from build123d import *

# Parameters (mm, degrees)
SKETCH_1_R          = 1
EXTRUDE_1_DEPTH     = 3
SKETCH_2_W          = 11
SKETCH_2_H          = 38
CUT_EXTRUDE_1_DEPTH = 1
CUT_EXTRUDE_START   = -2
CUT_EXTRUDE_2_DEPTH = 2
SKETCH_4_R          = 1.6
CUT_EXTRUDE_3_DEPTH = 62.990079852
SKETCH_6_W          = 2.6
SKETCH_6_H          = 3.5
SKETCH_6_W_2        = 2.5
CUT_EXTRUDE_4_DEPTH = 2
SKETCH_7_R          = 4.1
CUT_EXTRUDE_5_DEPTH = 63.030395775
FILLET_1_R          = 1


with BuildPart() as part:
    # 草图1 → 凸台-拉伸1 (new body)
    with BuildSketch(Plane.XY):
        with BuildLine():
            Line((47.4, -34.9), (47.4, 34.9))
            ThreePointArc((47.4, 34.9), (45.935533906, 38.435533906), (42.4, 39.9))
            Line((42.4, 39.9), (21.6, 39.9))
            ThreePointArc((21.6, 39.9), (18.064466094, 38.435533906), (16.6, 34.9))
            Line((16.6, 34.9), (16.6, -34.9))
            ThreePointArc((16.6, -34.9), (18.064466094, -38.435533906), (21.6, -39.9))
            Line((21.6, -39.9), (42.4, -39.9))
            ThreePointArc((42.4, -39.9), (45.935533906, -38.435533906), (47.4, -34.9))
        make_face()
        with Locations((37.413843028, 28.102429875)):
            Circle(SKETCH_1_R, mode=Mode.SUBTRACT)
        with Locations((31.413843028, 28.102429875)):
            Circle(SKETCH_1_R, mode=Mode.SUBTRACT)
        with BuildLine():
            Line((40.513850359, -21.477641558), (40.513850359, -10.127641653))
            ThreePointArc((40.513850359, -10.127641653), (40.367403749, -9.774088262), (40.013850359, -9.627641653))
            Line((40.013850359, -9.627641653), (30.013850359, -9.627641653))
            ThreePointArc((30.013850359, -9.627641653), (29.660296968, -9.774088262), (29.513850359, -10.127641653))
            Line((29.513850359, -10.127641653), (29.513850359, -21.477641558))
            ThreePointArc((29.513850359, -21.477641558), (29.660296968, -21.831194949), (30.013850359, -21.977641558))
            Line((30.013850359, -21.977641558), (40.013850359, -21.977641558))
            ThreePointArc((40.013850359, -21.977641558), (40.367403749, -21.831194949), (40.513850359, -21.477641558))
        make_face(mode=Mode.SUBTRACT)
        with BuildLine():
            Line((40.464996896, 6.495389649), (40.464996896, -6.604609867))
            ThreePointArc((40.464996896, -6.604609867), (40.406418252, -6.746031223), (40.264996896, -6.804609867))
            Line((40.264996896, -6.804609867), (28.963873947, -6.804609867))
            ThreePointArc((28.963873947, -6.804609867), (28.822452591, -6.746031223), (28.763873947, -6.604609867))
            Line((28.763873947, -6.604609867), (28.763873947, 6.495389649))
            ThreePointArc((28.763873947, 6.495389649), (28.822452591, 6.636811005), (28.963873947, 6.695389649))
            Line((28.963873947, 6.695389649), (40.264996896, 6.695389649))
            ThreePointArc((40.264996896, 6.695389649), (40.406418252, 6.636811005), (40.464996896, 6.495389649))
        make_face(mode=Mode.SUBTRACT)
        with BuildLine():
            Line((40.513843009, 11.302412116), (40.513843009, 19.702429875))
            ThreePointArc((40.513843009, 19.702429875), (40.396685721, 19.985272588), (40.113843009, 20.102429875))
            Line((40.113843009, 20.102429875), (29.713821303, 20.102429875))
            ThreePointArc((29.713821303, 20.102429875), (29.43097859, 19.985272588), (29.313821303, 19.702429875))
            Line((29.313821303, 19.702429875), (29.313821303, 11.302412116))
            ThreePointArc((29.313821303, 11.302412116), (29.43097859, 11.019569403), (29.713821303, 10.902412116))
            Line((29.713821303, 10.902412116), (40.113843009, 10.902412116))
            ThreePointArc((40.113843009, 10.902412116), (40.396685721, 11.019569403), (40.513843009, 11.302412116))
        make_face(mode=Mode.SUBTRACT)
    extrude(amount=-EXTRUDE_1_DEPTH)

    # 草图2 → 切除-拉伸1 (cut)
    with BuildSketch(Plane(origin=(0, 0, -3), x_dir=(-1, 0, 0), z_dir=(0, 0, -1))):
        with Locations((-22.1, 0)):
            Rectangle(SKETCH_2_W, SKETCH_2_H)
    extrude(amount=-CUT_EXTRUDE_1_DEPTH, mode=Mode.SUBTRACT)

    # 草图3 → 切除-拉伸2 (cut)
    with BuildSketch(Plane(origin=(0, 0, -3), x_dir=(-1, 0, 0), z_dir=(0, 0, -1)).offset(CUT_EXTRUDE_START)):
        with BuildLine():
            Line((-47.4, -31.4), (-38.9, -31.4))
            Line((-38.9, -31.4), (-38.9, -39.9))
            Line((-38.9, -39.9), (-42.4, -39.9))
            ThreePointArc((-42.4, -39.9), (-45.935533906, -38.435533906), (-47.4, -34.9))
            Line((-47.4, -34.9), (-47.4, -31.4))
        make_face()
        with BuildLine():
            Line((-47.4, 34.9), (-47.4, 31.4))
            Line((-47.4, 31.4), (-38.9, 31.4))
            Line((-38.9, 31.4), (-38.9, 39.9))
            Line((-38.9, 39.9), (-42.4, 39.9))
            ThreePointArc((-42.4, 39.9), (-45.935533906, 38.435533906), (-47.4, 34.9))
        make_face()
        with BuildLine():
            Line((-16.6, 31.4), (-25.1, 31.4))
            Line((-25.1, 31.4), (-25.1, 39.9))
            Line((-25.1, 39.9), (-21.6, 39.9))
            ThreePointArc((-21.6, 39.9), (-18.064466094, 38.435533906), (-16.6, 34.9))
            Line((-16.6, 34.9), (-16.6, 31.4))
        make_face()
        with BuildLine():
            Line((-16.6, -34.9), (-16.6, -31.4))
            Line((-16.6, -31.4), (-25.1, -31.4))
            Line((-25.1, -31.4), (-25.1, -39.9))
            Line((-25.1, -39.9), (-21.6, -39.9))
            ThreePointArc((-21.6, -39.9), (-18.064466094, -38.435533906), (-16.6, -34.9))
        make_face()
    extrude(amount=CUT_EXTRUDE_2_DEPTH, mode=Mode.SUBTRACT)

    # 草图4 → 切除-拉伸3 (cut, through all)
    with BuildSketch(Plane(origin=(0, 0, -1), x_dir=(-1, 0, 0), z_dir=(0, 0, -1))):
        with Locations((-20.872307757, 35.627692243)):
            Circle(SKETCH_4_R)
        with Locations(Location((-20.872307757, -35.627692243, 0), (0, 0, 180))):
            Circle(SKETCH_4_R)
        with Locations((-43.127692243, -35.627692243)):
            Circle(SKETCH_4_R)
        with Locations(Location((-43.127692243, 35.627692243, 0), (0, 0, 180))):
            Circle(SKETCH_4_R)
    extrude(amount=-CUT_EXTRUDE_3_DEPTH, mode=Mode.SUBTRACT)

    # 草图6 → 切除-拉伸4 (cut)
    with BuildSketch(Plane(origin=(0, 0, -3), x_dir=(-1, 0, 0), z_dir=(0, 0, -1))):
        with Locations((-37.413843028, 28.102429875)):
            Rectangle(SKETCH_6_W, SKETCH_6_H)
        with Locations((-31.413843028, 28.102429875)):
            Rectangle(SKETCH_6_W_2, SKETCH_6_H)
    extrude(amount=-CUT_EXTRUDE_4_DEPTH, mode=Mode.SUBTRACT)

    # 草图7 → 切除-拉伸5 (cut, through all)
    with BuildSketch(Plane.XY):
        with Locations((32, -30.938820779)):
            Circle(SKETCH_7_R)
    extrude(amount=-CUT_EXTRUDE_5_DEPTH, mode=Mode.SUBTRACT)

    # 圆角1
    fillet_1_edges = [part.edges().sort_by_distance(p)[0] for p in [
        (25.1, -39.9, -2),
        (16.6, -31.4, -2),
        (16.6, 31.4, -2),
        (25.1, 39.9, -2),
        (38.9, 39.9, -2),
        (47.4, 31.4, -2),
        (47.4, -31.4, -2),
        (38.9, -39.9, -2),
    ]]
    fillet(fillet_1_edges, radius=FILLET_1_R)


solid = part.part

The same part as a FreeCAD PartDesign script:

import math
import FreeCAD as App
import Part
import Sketcher


def edges_at(feature, points):
    """Names of the edges that pass closest to the given points."""
    edges = feature.Shape.Edges
    near = lambda p: min(range(len(edges)), key=lambda i: edges[i].distToShape(Part.Vertex(*p))[0])
    return sorted({f"Edge{near(p) + 1}" for p in points})

doc = App.newDocument("Part")
body = doc.addObject("PartDesign::Body", "Body")

sketch1 = body.newObject("Sketcher::SketchObject", "Sketch")
sketch1.AttachmentSupport = (doc.getObject("XY_Plane"), [""])
sketch1.MapMode = "FlatFace"
sketch1.addGeometry(Part.LineSegment(App.Vector(47.4, -34.9, 0), App.Vector(47.4, 34.9, 0)), False)
sketch1.addGeometry(Part.ArcOfCircle(Part.Circle(App.Vector(42.4, 34.9, 0), App.Vector(0, 0, 1), 5), math.radians(0), math.radians(90)), False)
sketch1.addGeometry(Part.LineSegment(App.Vector(42.4, 39.9, 0), App.Vector(21.6, 39.9, 0)), False)
sketch1.addGeometry(Part.ArcOfCircle(Part.Circle(App.Vector(21.6, 34.9, 0), App.Vector(0, 0, 1), 5), math.radians(90), math.radians(180)), False)
sketch1.addGeometry(Part.LineSegment(App.Vector(16.6, 34.9, 0), App.Vector(16.6, -34.9, 0)), False)
sketch1.addGeometry(Part.ArcOfCircle(Part.Circle(App.Vector(21.6, -34.9, 0), App.Vector(0, 0, 1), 5), math.radians(180), math.radians(270)), False)
sketch1.addGeometry(Part.LineSegment(App.Vector(21.6, -39.9, 0), App.Vector(42.4, -39.9, 0)), False)
sketch1.addGeometry(Part.ArcOfCircle(Part.Circle(App.Vector(42.4, -34.9, 0), App.Vector(0, 0, 1), 5), math.radians(-90), math.radians(0)), False)
sketch1.addGeometry(Part.ArcOfCircle(Part.Circle(App.Vector(40.26, 6.5, 0), App.Vector(0, 0, 1), 0.2), math.radians(0), math.radians(90)), False)
sketch1.addGeometry(Part.LineSegment(App.Vector(40.46, 6.5, 0), App.Vector(40.46, -6.6, 0)), False)
sketch1.addGeometry(Part.ArcOfCircle(Part.Circle(App.Vector(40.26, -6.6, 0), App.Vector(0, 0, 1), 0.2), math.radians(-90), math.radians(0)), False)
sketch1.addGeometry(Part.LineSegment(App.Vector(40.26, -6.8, 0), App.Vector(28.96, -6.8, 0)), False)
sketch1.addGeometry(Part.ArcOfCircle(Part.Circle(App.Vector(28.96, -6.6, 0), App.Vector(0, 0, 1), 0.2), math.radians(-180), math.radians(-90)), False)
sketch1.addGeometry(Part.LineSegment(App.Vector(28.76, -6.6, 0), App.Vector(28.76, 6.5, 0)), False)
sketch1.addGeometry(Part.ArcOfCircle(Part.Circle(App.Vector(28.96, 6.5, 0), App.Vector(0, 0, 1), 0.2), math.radians(90), math.radians(180)), False)
sketch1.addGeometry(Part.LineSegment(App.Vector(28.96, 6.7, 0), App.Vector(40.26, 6.7, 0)), False)
sketch1.addGeometry(Part.LineSegment(App.Vector(40.51, -10.13, 0), App.Vector(40.51, -21.48, 0)), False)
sketch1.addGeometry(Part.ArcOfCircle(Part.Circle(App.Vector(40.01, -21.48, 0), App.Vector(0, 0, 1), 0.5), math.radians(-90), math.radians(0)), False)
sketch1.addGeometry(Part.LineSegment(App.Vector(40.01, -21.98, 0), App.Vector(30.01, -21.98, 0)), False)
sketch1.addGeometry(Part.ArcOfCircle(Part.Circle(App.Vector(30.01, -21.48, 0), App.Vector(0, 0, 1), 0.5), math.radians(180), math.radians(270)), False)
sketch1.addGeometry(Part.LineSegment(App.Vector(29.51, -21.48, 0), App.Vector(29.51, -10.13, 0)), False)
sketch1.addGeometry(Part.ArcOfCircle(Part.Circle(App.Vector(30.01, -10.13, 0), App.Vector(0, 0, 1), 0.5), math.radians(90), math.radians(180)), False)
sketch1.addGeometry(Part.LineSegment(App.Vector(30.01, -9.63, 0), App.Vector(40.01, -9.63, 0)), False)
sketch1.addGeometry(Part.ArcOfCircle(Part.Circle(App.Vector(40.01, -10.13, 0), App.Vector(0, 0, 1), 0.5), math.radians(0), math.radians(90)), False)
sketch1.addGeometry(Part.Circle(App.Vector(31.41, 28.1, 0), App.Vector(0, 0, 1), 1), False)
sketch1.addGeometry(Part.LineSegment(App.Vector(40.51, 19.7, 0), App.Vector(40.51, 11.3, 0)), False)
sketch1.addGeometry(Part.ArcOfCircle(Part.Circle(App.Vector(40.11, 11.3, 0), App.Vector(0, 0, 1), 0.4), math.radians(-90), math.radians(0)), False)
sketch1.addGeometry(Part.LineSegment(App.Vector(40.11, 10.9, 0), App.Vector(29.71, 10.9, 0)), False)
sketch1.addGeometry(Part.ArcOfCircle(Part.Circle(App.Vector(29.71, 11.3, 0), App.Vector(0, 0, 1), 0.4), math.radians(180), math.radians(270)), False)
sketch1.addGeometry(Part.LineSegment(App.Vector(29.31, 11.3, 0), App.Vector(29.31, 19.7, 0)), False)
sketch1.addGeometry(Part.ArcOfCircle(Part.Circle(App.Vector(29.71, 19.7, 0), App.Vector(0, 0, 1), 0.4), math.radians(90), math.radians(180)), False)
sketch1.addGeometry(Part.LineSegment(App.Vector(29.71, 20.1, 0), App.Vector(40.11, 20.1, 0)), False)
sketch1.addGeometry(Part.ArcOfCircle(Part.Circle(App.Vector(40.11, 19.7, 0), App.Vector(0, 0, 1), 0.4), math.radians(0), math.radians(90)), False)
sketch1.addGeometry(Part.Circle(App.Vector(37.41, 28.1, 0), App.Vector(0, 0, 1), 1), False)
sketch1.addConstraint(Sketcher.Constraint("Tangent", 0, 2, 1, 1))
sketch1.addConstraint(Sketcher.Constraint("Tangent", 1, 2, 2, 1))
sketch1.addConstraint(Sketcher.Constraint("Tangent", 2, 2, 3, 1))
sketch1.addConstraint(Sketcher.Constraint("Tangent", 3, 2, 4, 1))
sketch1.addConstraint(Sketcher.Constraint("Tangent", 4, 2, 5, 1))
sketch1.addConstraint(Sketcher.Constraint("Tangent", 5, 2, 6, 1))
sketch1.addConstraint(Sketcher.Constraint("Tangent", 6, 2, 7, 1))
sketch1.addConstraint(Sketcher.Constraint("Tangent", 7, 2, 0, 1))
sketch1.addConstraint(Sketcher.Constraint("Tangent", 8, 1, 9, 1))
sketch1.addConstraint(Sketcher.Constraint("Tangent", 9, 2, 10, 2))
sketch1.addConstraint(Sketcher.Constraint("Tangent", 10, 1, 11, 1))
sketch1.addConstraint(Sketcher.Constraint("Tangent", 11, 2, 12, 2))
sketch1.addConstraint(Sketcher.Constraint("Tangent", 12, 1, 13, 1))
sketch1.addConstraint(Sketcher.Constraint("Tangent", 13, 2, 14, 2))
sketch1.addConstraint(Sketcher.Constraint("Tangent", 14, 1, 15, 1))
sketch1.addConstraint(Sketcher.Constraint("Tangent", 15, 2, 8, 2))
sketch1.addConstraint(Sketcher.Constraint("Tangent", 16, 2, 17, 2))
sketch1.addConstraint(Sketcher.Constraint("Tangent", 17, 1, 18, 1))
sketch1.addConstraint(Sketcher.Constraint("Tangent", 18, 2, 19, 2))
sketch1.addConstraint(Sketcher.Constraint("Tangent", 19, 1, 20, 1))
sketch1.addConstraint(Sketcher.Constraint("Tangent", 20, 2, 21, 2))
sketch1.addConstraint(Sketcher.Constraint("Tangent", 21, 1, 22, 1))
sketch1.addConstraint(Sketcher.Constraint("Tangent", 22, 2, 23, 2))
sketch1.addConstraint(Sketcher.Constraint("Tangent", 23, 1, 16, 1))
sketch1.addConstraint(Sketcher.Constraint("Tangent", 25, 2, 26, 2))
sketch1.addConstraint(Sketcher.Constraint("Tangent", 26, 1, 27, 1))
sketch1.addConstraint(Sketcher.Constraint("Tangent", 27, 2, 28, 2))
sketch1.addConstraint(Sketcher.Constraint("Tangent", 28, 1, 29, 1))
sketch1.addConstraint(Sketcher.Constraint("Tangent", 29, 2, 30, 2))
sketch1.addConstraint(Sketcher.Constraint("Tangent", 30, 1, 31, 1))
sketch1.addConstraint(Sketcher.Constraint("Tangent", 31, 2, 32, 2))
sketch1.addConstraint(Sketcher.Constraint("Tangent", 32, 1, 25, 1))
sketch1.addConstraint(Sketcher.Constraint("Vertical", 0))
sketch1.addConstraint(Sketcher.Constraint("Horizontal", 2))
sketch1.addConstraint(Sketcher.Constraint("Vertical", 4))
sketch1.addConstraint(Sketcher.Constraint("Horizontal", 6))
sketch1.addConstraint(Sketcher.Constraint("Vertical", 9))
sketch1.addConstraint(Sketcher.Constraint("Horizontal", 11))
sketch1.addConstraint(Sketcher.Constraint("Vertical", 13))
sketch1.addConstraint(Sketcher.Constraint("Horizontal", 15))
sketch1.addConstraint(Sketcher.Constraint("Vertical", 16))
sketch1.addConstraint(Sketcher.Constraint("Horizontal", 18))
sketch1.addConstraint(Sketcher.Constraint("Vertical", 20))
sketch1.addConstraint(Sketcher.Constraint("Horizontal", 22))
sketch1.addConstraint(Sketcher.Constraint("Vertical", 25))
sketch1.addConstraint(Sketcher.Constraint("Horizontal", 27))
sketch1.addConstraint(Sketcher.Constraint("Vertical", 29))
sketch1.addConstraint(Sketcher.Constraint("Horizontal", 31))
sketch1.addConstraint(Sketcher.Constraint("Equal", 1, 3))
sketch1.addConstraint(Sketcher.Constraint("Equal", 3, 5))
sketch1.addConstraint(Sketcher.Constraint("Equal", 5, 7))
sketch1.addConstraint(Sketcher.Constraint("Equal", 8, 10))
sketch1.addConstraint(Sketcher.Constraint("Equal", 10, 12))
sketch1.addConstraint(Sketcher.Constraint("Equal", 12, 14))
sketch1.addConstraint(Sketcher.Constraint("Equal", 17, 19))
sketch1.addConstraint(Sketcher.Constraint("Equal", 19, 21))
sketch1.addConstraint(Sketcher.Constraint("Equal", 21, 23))
sketch1.addConstraint(Sketcher.Constraint("Equal", 26, 28))
sketch1.addConstraint(Sketcher.Constraint("Equal", 28, 30))
sketch1.addConstraint(Sketcher.Constraint("Equal", 30, 32))
sketch1.addConstraint(Sketcher.Constraint("Equal", 24, 33))
sketch1.addConstraint(Sketcher.Constraint("Horizontal", 24, 3, 33, 3))
sketch1.addConstraint(Sketcher.Constraint("Diameter", 24, 2.0))
sketch1.addConstraint(Sketcher.Constraint("Radius", 1, 5.0))
sketch1.addConstraint(Sketcher.Constraint("Radius", 8, 0.2))
sketch1.addConstraint(Sketcher.Constraint("Radius", 17, 0.5))
sketch1.addConstraint(Sketcher.Constraint("Radius", 26, 0.4))
sketch1.addConstraint(Sketcher.Constraint("DistanceX", 18, 2, 18, 1, 10.0))
sketch1.addConstraint(Sketcher.Constraint("DistanceX", 2, 2, 2, 1, 20.8))
sketch1.addConstraint(Sketcher.Constraint("DistanceY", 0, 1, 0, 2, 69.8))
sketch1.addConstraint(Sketcher.Constraint("DistanceY", 9, 2, 9, 1, 13.1))
sketch1.addConstraint(Sketcher.Constraint("DistanceX", 24, 3, 33, 3, 6.0))
sketch1.addConstraint(Sketcher.Constraint("DistanceY", 30, 1, 24, 3, 8.0))
sketch1.addConstraint(Sketcher.Constraint("DistanceY", 16, 2, 16, 1, 11.35))
sketch1.addConstraint(Sketcher.Constraint("DistanceX", -1, 1, 1, 3, 42.4))
sketch1.addConstraint(Sketcher.Constraint("DistanceY", -1, 1, 1, 3, 34.9))
sketch1.addConstraint(Sketcher.Constraint("DistanceX", 24, 3, 26, 3, 8.7))
sketch1.addConstraint(Sketcher.Constraint("DistanceX", 27, 2, 27, 1, 10.400022))
sketch1.addConstraint(Sketcher.Constraint("DistanceX", 11, 2, 11, 1, 11.301123))
sketch1.addConstraint(Sketcher.Constraint("DistanceY", 25, 2, 25, 1, 8.400018))
sketch1.addConstraint(Sketcher.Constraint("DistanceY", -1, 1, 8, 3, 6.49539))
sketch1.addConstraint(Sketcher.Constraint("DistanceX", -1, 1, 17, 3, 40.01385))
sketch1.addConstraint(Sketcher.Constraint("DistanceY", 17, 3, -1, 1, 21.477642))
sketch1.addConstraint(Sketcher.Constraint("DistanceY", -1, 1, 24, 3, 28.10243))
sketch1.addConstraint(Sketcher.Constraint("DistanceX", -1, 1, 28, 3, 29.713821))
sketch1.addConstraint(Sketcher.Constraint("DistanceX", 14, 3, 24, 3, 2.449969))
pad1 = body.newObject("PartDesign::Pad", "Pad")
pad1.Profile = sketch1
pad1.Length = 3
pad1.Reversed = True

sketch2 = body.newObject("Sketcher::SketchObject", "Sketch001")
sketch2.AttachmentSupport = (doc.getObject("XY_Plane"), [""])
sketch2.MapMode = "FlatFace"
sketch2.AttachmentOffset = App.Placement(App.Vector(0, 0, -3), App.Rotation())
sketch2.addGeometry(Part.LineSegment(App.Vector(28, 19, 0), App.Vector(28, -19, 0)), False)
sketch2.addGeometry(Part.LineSegment(App.Vector(28, -19, 0), App.Vector(17, -19, 0)), False)
sketch2.addGeometry(Part.LineSegment(App.Vector(17, -19, 0), App.Vector(17, 19, 0)), False)
sketch2.addGeometry(Part.LineSegment(App.Vector(17, 19, 0), App.Vector(28, 19, 0)), False)
sketch2.addConstraint(Sketcher.Constraint("Coincident", 0, 2, 1, 1))
sketch2.addConstraint(Sketcher.Constraint("Coincident", 1, 2, 2, 1))
sketch2.addConstraint(Sketcher.Constraint("Coincident", 2, 2, 3, 1))
sketch2.addConstraint(Sketcher.Constraint("Coincident", 3, 2, 0, 1))
sketch2.addConstraint(Sketcher.Constraint("Vertical", 0))
sketch2.addConstraint(Sketcher.Constraint("Horizontal", 1))
sketch2.addConstraint(Sketcher.Constraint("Vertical", 2))
sketch2.addConstraint(Sketcher.Constraint("Horizontal", 3))
sketch2.addConstraint(Sketcher.Constraint("DistanceX", 1, 2, 1, 1, 11.0))
sketch2.addConstraint(Sketcher.Constraint("DistanceY", 0, 2, 0, 1, 38.0))
sketch2.addConstraint(Sketcher.Constraint("DistanceY", 0, 2, -1, 1, 19.0))
sketch2.addConstraint(Sketcher.Constraint("DistanceX", -1, 1, 0, 2, 27.6))
pocket1 = body.newObject("PartDesign::Pocket", "Pocket")
pocket1.Profile = sketch2
pocket1.Length = 1
pocket1.Reversed = True

sketch3 = body.newObject("Sketcher::SketchObject", "Sketch002")
sketch3.AttachmentSupport = (doc.getObject("XY_Plane"), [""])
sketch3.MapMode = "FlatFace"
sketch3.AttachmentOffset = App.Placement(App.Vector(0, 0, -1), App.Rotation())
sketch3.addGeometry(Part.LineSegment(App.Vector(38.9, -31.4, 0), App.Vector(47.4, -31.4, 0)), False)
sketch3.addGeometry(Part.LineSegment(App.Vector(47.4, -31.4, 0), App.Vector(47.4, -34.9, 0)), False)
sketch3.addGeometry(Part.ArcOfCircle(Part.Circle(App.Vector(42.4, -34.9, 0), App.Vector(0, 0, 1), 5), math.radians(-90), math.radians(0)), False)
sketch3.addGeometry(Part.LineSegment(App.Vector(42.4, -39.9, 0), App.Vector(38.9, -39.9, 0)), False)
sketch3.addGeometry(Part.LineSegment(App.Vector(38.9, -39.9, 0), App.Vector(38.9, -31.4, 0)), False)
sketch3.addGeometry(Part.LineSegment(App.Vector(47.4, 34.9, 0), App.Vector(47.4, 31.4, 0)), False)
sketch3.addGeometry(Part.LineSegment(App.Vector(47.4, 31.4, 0), App.Vector(38.9, 31.4, 0)), False)
sketch3.addGeometry(Part.LineSegment(App.Vector(38.9, 31.4, 0), App.Vector(38.9, 39.9, 0)), False)
sketch3.addGeometry(Part.LineSegment(App.Vector(38.9, 39.9, 0), App.Vector(42.4, 39.9, 0)), False)
sketch3.addGeometry(Part.ArcOfCircle(Part.Circle(App.Vector(42.4, 34.9, 0), App.Vector(0, 0, 1), 5), math.radians(0), math.radians(90)), False)
sketch3.addGeometry(Part.LineSegment(App.Vector(25.1, 31.4, 0), App.Vector(16.6, 31.4, 0)), False)
sketch3.addGeometry(Part.LineSegment(App.Vector(16.6, 31.4, 0), App.Vector(16.6, 34.9, 0)), False)
sketch3.addGeometry(Part.ArcOfCircle(Part.Circle(App.Vector(21.6, 34.9, 0), App.Vector(0, 0, 1), 5), math.radians(90), math.radians(180)), False)
sketch3.addGeometry(Part.LineSegment(App.Vector(21.6, 39.9, 0), App.Vector(25.1, 39.9, 0)), False)
sketch3.addGeometry(Part.LineSegment(App.Vector(25.1, 39.9, 0), App.Vector(25.1, 31.4, 0)), False)
sketch3.addGeometry(Part.LineSegment(App.Vector(16.6, -34.9, 0), App.Vector(16.6, -31.4, 0)), False)
sketch3.addGeometry(Part.LineSegment(App.Vector(16.6, -31.4, 0), App.Vector(25.1, -31.4, 0)), False)
sketch3.addGeometry(Part.LineSegment(App.Vector(25.1, -31.4, 0), App.Vector(25.1, -39.9, 0)), False)
sketch3.addGeometry(Part.LineSegment(App.Vector(25.1, -39.9, 0), App.Vector(21.6, -39.9, 0)), False)
sketch3.addGeometry(Part.ArcOfCircle(Part.Circle(App.Vector(21.6, -34.9, 0), App.Vector(0, 0, 1), 5), math.radians(180), math.radians(270)), False)
sketch3.addConstraint(Sketcher.Constraint("Coincident", 0, 2, 1, 1))
sketch3.addConstraint(Sketcher.Constraint("Tangent", 1, 2, 2, 2))
sketch3.addConstraint(Sketcher.Constraint("Tangent", 2, 1, 3, 1))
sketch3.addConstraint(Sketcher.Constraint("Coincident", 3, 2, 4, 1))
sketch3.addConstraint(Sketcher.Constraint("Coincident", 4, 2, 0, 1))
sketch3.addConstraint(Sketcher.Constraint("Coincident", 5, 2, 6, 1))
sketch3.addConstraint(Sketcher.Constraint("Coincident", 6, 2, 7, 1))
sketch3.addConstraint(Sketcher.Constraint("Coincident", 7, 2, 8, 1))
sketch3.addConstraint(Sketcher.Constraint("Tangent", 8, 2, 9, 2))
sketch3.addConstraint(Sketcher.Constraint("Tangent", 9, 1, 5, 1))
sketch3.addConstraint(Sketcher.Constraint("Coincident", 10, 2, 11, 1))
sketch3.addConstraint(Sketcher.Constraint("Tangent", 11, 2, 12, 2))
sketch3.addConstraint(Sketcher.Constraint("Tangent", 12, 1, 13, 1))
sketch3.addConstraint(Sketcher.Constraint("Coincident", 13, 2, 14, 1))
sketch3.addConstraint(Sketcher.Constraint("Coincident", 14, 2, 10, 1))
sketch3.addConstraint(Sketcher.Constraint("Coincident", 15, 2, 16, 1))
sketch3.addConstraint(Sketcher.Constraint("Coincident", 16, 2, 17, 1))
sketch3.addConstraint(Sketcher.Constraint("Coincident", 17, 2, 18, 1))
sketch3.addConstraint(Sketcher.Constraint("Tangent", 18, 2, 19, 2))
sketch3.addConstraint(Sketcher.Constraint("Tangent", 19, 1, 15, 1))
sketch3.addConstraint(Sketcher.Constraint("Horizontal", 0))
sketch3.addConstraint(Sketcher.Constraint("Vertical", 1))
sketch3.addConstraint(Sketcher.Constraint("Horizontal", 3))
sketch3.addConstraint(Sketcher.Constraint("Vertical", 4))
sketch3.addConstraint(Sketcher.Constraint("Vertical", 5))
sketch3.addConstraint(Sketcher.Constraint("Horizontal", 6))
sketch3.addConstraint(Sketcher.Constraint("Vertical", 7))
sketch3.addConstraint(Sketcher.Constraint("Horizontal", 8))
sketch3.addConstraint(Sketcher.Constraint("Horizontal", 10))
sketch3.addConstraint(Sketcher.Constraint("Vertical", 11))
sketch3.addConstraint(Sketcher.Constraint("Horizontal", 13))
sketch3.addConstraint(Sketcher.Constraint("Vertical", 14))
sketch3.addConstraint(Sketcher.Constraint("Vertical", 15))
sketch3.addConstraint(Sketcher.Constraint("Horizontal", 16))
sketch3.addConstraint(Sketcher.Constraint("Vertical", 17))
sketch3.addConstraint(Sketcher.Constraint("Horizontal", 18))
sketch3.addConstraint(Sketcher.Constraint("Equal", 2, 9))
sketch3.addConstraint(Sketcher.Constraint("Equal", 9, 12))
sketch3.addConstraint(Sketcher.Constraint("Equal", 12, 19))
sketch3.addConstraint(Sketcher.Constraint("Symmetric", 2, 3, 9, 3, -1))
sketch3.addConstraint(Sketcher.Constraint("Symmetric", 12, 3, 19, 3, -1))
sketch3.addConstraint(Sketcher.Constraint("Symmetric", 4, 2, 6, 2, -1))
sketch3.addConstraint(Sketcher.Constraint("Symmetric", 14, 2, 16, 2, -1))
sketch3.addConstraint(Sketcher.Constraint("Horizontal", 9, 3, 12, 3))
sketch3.addConstraint(Sketcher.Constraint("Horizontal", 6, 2, 10, 2))
sketch3.addConstraint(Sketcher.Constraint("Equal", 6, 10))
sketch3.addConstraint(Sketcher.Constraint("Equal", 18, 1))
sketch3.addConstraint(Sketcher.Constraint("Radius", 2, 5.0))
sketch3.addConstraint(Sketcher.Constraint("DistanceX", 0, 1, 0, 2, 8.5))
sketch3.addConstraint(Sketcher.Constraint("DistanceX", -1, 1, 2, 3, 42.4))
sketch3.addConstraint(Sketcher.Constraint("DistanceY", 2, 3, -1, 1, 34.9))
sketch3.addConstraint(Sketcher.Constraint("DistanceX", -1, 1, 12, 3, 21.6))
pocket2 = body.newObject("PartDesign::Pocket", "Pocket001")
pocket2.Profile = sketch3
pocket2.Length = 2

sketch4 = body.newObject("Sketcher::SketchObject", "Sketch003")
sketch4.AttachmentSupport = (doc.getObject("XY_Plane"), [""])
sketch4.MapMode = "FlatFace"
sketch4.AttachmentOffset = App.Placement(App.Vector(0, 0, -1), App.Rotation())
sketch4.addGeometry(Part.Circle(App.Vector(20.9, 35.6, 0), App.Vector(0, 0, 1), 1.6), False)
sketch4.addGeometry(Part.Circle(App.Vector(20.9, -35.6, 0), App.Vector(0, 0, 1), 1.6), False)
sketch4.addGeometry(Part.Circle(App.Vector(43.1, -35.6, 0), App.Vector(0, 0, 1), 1.6), False)
sketch4.addGeometry(Part.Circle(App.Vector(43.1, 35.6, 0), App.Vector(0, 0, 1), 1.6), False)
sketch4.addConstraint(Sketcher.Constraint("Equal", 0, 1))
sketch4.addConstraint(Sketcher.Constraint("Equal", 1, 2))
sketch4.addConstraint(Sketcher.Constraint("Equal", 2, 3))
sketch4.addConstraint(Sketcher.Constraint("Symmetric", 0, 3, 1, 3, -1))
sketch4.addConstraint(Sketcher.Constraint("Symmetric", 2, 3, 3, 3, -1))
sketch4.addConstraint(Sketcher.Constraint("Horizontal", 1, 3, 2, 3))
sketch4.addConstraint(Sketcher.Constraint("Diameter", 0, 3.2))
sketch4.addConstraint(Sketcher.Constraint("DistanceX", -1, 1, 0, 3, 20.872308))
sketch4.addConstraint(Sketcher.Constraint("DistanceY", -1, 1, 0, 3, 35.627692))
sketch4.addConstraint(Sketcher.Constraint("DistanceX", -1, 1, 2, 3, 43.127692))
pocket3 = body.newObject("PartDesign::Pocket", "Pocket002")
pocket3.Profile = sketch4
pocket3.Type = "ThroughAll"
pocket3.Reversed = True

sketch5 = body.newObject("Sketcher::SketchObject", "Sketch004")
sketch5.AttachmentSupport = (doc.getObject("XY_Plane"), [""])
sketch5.MapMode = "FlatFace"
sketch5.AttachmentOffset = App.Placement(App.Vector(0, 0, -3), App.Rotation())
sketch5.addGeometry(Part.LineSegment(App.Vector(38.7, 29.9, 0), App.Vector(38.7, 26.4, 0)), False)
sketch5.addGeometry(Part.LineSegment(App.Vector(38.7, 26.4, 0), App.Vector(36.1, 26.4, 0)), False)
sketch5.addGeometry(Part.LineSegment(App.Vector(36.1, 26.4, 0), App.Vector(36.1, 29.9, 0)), False)
sketch5.addGeometry(Part.LineSegment(App.Vector(36.1, 29.9, 0), App.Vector(38.7, 29.9, 0)), False)
sketch5.addGeometry(Part.LineSegment(App.Vector(32.7, 29.9, 0), App.Vector(32.7, 26.4, 0)), False)
sketch5.addGeometry(Part.LineSegment(App.Vector(32.7, 26.4, 0), App.Vector(30.2, 26.4, 0)), False)
sketch5.addGeometry(Part.LineSegment(App.Vector(30.2, 26.4, 0), App.Vector(30.2, 29.9, 0)), False)
sketch5.addGeometry(Part.LineSegment(App.Vector(30.2, 29.9, 0), App.Vector(32.7, 29.9, 0)), False)
sketch5.addConstraint(Sketcher.Constraint("Coincident", 0, 2, 1, 1))
sketch5.addConstraint(Sketcher.Constraint("Coincident", 1, 2, 2, 1))
sketch5.addConstraint(Sketcher.Constraint("Coincident", 2, 2, 3, 1))
sketch5.addConstraint(Sketcher.Constraint("Coincident", 3, 2, 0, 1))
sketch5.addConstraint(Sketcher.Constraint("Coincident", 4, 2, 5, 1))
sketch5.addConstraint(Sketcher.Constraint("Coincident", 5, 2, 6, 1))
sketch5.addConstraint(Sketcher.Constraint("Coincident", 6, 2, 7, 1))
sketch5.addConstraint(Sketcher.Constraint("Coincident", 7, 2, 4, 1))
sketch5.addConstraint(Sketcher.Constraint("Vertical", 0))
sketch5.addConstraint(Sketcher.Constraint("Horizontal", 1))
sketch5.addConstraint(Sketcher.Constraint("Vertical", 2))
sketch5.addConstraint(Sketcher.Constraint("Horizontal", 3))
sketch5.addConstraint(Sketcher.Constraint("Vertical", 4))
sketch5.addConstraint(Sketcher.Constraint("Horizontal", 5))
sketch5.addConstraint(Sketcher.Constraint("Vertical", 6))
sketch5.addConstraint(Sketcher.Constraint("Horizontal", 7))
sketch5.addConstraint(Sketcher.Constraint("Horizontal", 1, 2, 4, 2))
sketch5.addConstraint(Sketcher.Constraint("Horizontal", 3, 2, 6, 2))
sketch5.addConstraint(Sketcher.Constraint("DistanceX", 1, 2, 1, 1, 2.6))
sketch5.addConstraint(Sketcher.Constraint("DistanceX", 5, 2, 5, 1, 2.5))
sketch5.addConstraint(Sketcher.Constraint("DistanceY", 0, 2, 0, 1, 3.5))
sketch5.addConstraint(Sketcher.Constraint("DistanceX", 4, 2, 1, 2, 3.45))
sketch5.addConstraint(Sketcher.Constraint("DistanceY", -1, 1, 0, 2, 26.35243))
sketch5.addConstraint(Sketcher.Constraint("DistanceX", -1, 1, 0, 2, 38.713843))
pocket4 = body.newObject("PartDesign::Pocket", "Pocket003")
pocket4.Profile = sketch5
pocket4.Length = 2
pocket4.Reversed = True

sketch6 = body.newObject("Sketcher::SketchObject", "Sketch005")
sketch6.AttachmentSupport = (doc.getObject("XY_Plane"), [""])
sketch6.MapMode = "FlatFace"
sketch6.addGeometry(Part.Circle(App.Vector(32, -30.9, 0), App.Vector(0, 0, 1), 4.1), False)
sketch6.addConstraint(Sketcher.Constraint("Diameter", 0, 8.2))
sketch6.addConstraint(Sketcher.Constraint("DistanceX", -1, 1, 0, 3, 32.0))
sketch6.addConstraint(Sketcher.Constraint("DistanceY", 0, 3, -1, 1, 30.938821))
pocket5 = body.newObject("PartDesign::Pocket", "Pocket004")
pocket5.Profile = sketch6
pocket5.Type = "ThroughAll"
doc.recompute()

fillet = body.newObject("PartDesign::Fillet", "Fillet")
fillet.Base = (pocket5, edges_at(pocket5, [
    (25.1, -39.9, -2),
    (16.6, -31.4, -2),
    (16.6, 31.4, -2),
    (25.1, 39.9, -2),
    (38.9, 39.9, -2),
    (47.4, 31.4, -2),
    (47.4, -31.4, -2),
    (38.9, -39.9, -2),
]))
fillet.Radius = 1

doc.recompute()
